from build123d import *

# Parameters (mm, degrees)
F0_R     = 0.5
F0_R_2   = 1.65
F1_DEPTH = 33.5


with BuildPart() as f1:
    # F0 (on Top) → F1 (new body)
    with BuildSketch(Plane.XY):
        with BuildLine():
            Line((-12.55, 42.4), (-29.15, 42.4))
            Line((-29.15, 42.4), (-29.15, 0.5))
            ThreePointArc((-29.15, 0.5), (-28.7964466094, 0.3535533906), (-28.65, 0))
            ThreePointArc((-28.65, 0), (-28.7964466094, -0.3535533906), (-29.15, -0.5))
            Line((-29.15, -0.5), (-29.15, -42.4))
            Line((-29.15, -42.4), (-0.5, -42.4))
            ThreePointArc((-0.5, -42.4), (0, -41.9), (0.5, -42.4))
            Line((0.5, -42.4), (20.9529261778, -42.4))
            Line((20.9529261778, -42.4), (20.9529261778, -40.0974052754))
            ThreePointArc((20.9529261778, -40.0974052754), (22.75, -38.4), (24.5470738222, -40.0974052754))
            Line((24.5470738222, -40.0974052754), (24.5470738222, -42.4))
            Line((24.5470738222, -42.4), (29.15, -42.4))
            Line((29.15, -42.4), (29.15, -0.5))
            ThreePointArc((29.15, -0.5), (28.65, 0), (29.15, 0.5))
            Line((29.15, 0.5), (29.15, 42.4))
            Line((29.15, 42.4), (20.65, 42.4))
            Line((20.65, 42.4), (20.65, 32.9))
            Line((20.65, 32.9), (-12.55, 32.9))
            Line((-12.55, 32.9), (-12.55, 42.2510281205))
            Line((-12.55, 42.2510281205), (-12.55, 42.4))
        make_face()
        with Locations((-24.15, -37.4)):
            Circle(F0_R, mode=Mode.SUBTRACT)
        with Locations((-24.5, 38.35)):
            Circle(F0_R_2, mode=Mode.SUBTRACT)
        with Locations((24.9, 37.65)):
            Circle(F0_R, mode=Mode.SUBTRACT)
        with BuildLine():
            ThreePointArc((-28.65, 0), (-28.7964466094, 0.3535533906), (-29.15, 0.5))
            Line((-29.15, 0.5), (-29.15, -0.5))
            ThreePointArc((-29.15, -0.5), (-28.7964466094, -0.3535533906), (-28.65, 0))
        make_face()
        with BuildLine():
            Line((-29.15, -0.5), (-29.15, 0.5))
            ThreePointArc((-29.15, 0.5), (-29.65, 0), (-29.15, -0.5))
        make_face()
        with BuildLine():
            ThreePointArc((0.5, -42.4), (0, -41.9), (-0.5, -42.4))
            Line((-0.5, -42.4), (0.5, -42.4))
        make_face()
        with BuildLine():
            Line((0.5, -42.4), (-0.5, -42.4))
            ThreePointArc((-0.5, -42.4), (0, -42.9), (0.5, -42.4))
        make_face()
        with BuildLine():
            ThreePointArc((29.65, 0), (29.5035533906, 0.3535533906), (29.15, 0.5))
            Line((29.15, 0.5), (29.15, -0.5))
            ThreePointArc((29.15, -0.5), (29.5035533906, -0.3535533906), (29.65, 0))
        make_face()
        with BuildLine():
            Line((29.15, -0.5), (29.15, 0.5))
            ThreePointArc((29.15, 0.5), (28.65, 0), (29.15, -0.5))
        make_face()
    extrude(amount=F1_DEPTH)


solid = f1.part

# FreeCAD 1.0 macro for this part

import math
import FreeCAD as App
import Part
import Sketcher

V = App.Vector
Q = App.Units.Quantity

doc = App.newDocument("Part")
body = doc.addObject("PartDesign::Body", "Body")

sketch1 = body.newObject("Sketcher::SketchObject", "Sketch")
sketch1.AttachmentSupport = (doc.getObject("XY_Plane"), [""])
sketch1.MapMode = "FlatFace"
sketch1.addGeometry(Part.LineSegment(V(-12.6, 42.4, 0), V(-29.1, 42.4, 0)), False)
sketch1.addGeometry(Part.LineSegment(V(-29.1, 42.4, 0), V(-29.1, 0.5, 0)), False)
sketch1.addGeometry(Part.ArcOfCircle(Part.Circle(V(-29.1, 0, 0), V(0, 0, 1), 0.5), math.radians(90), math.radians(270)), False)
sketch1.addGeometry(Part.LineSegment(V(-29.1, -0.5, 0), V(-29.1, -42.4, 0)), False)
sketch1.addGeometry(Part.LineSegment(V(-29.1, -42.4, 0), V(-0.5, -42.4, 0)), False)
sketch1.addGeometry(Part.ArcOfCircle(Part.Circle(V(0, -42.4, 0), V(0, 0, 1), 0.5), math.radians(180), math.radians(360)), False)
sketch1.addGeometry(Part.LineSegment(V(0.5, -42.4, 0), V(21, -42.4, 0)), False)
sketch1.addGeometry(Part.LineSegment(V(21, -42.4, 0), V(21, -40.1, 0)), False)
sketch1.addGeometry(Part.ArcOfCircle(Part.Circle(V(22.8, -40.2, 0), V(0, 0, 1), 1.8), math.radians(3), math.radians(177)), False)
sketch1.addGeometry(Part.LineSegment(V(24.5, -40.1, 0), V(24.5, -42.4, 0)), False)
sketch1.addGeometry(Part.LineSegment(V(24.5, -42.4, 0), V(29.1, -42.4, 0)), False)
sketch1.addGeometry(Part.LineSegment(V(29.1, -42.4, 0), V(29.1, -0.5, 0)), False)
sketch1.addGeometry(Part.ArcOfCircle(Part.Circle(V(29.1, 0, 0), V(0, 0, 1), 0.5), math.radians(-90), math.radians(0)), False)
sketch1.addGeometry(Part.ArcOfCircle(Part.Circle(V(29.1, 0, 0), V(0, 0, 1), 0.5), math.radians(0), math.radians(90)), False)
sketch1.addGeometry(Part.LineSegment(V(29.1, 0.5, 0), V(29.1, 42.4, 0)), False)
sketch1.addGeometry(Part.LineSegment(V(29.1, 42.4, 0), V(20.6, 42.4, 0)), False)
sketch1.addGeometry(Part.LineSegment(V(20.6, 42.4, 0), V(20.6, 32.9, 0)), False)
sketch1.addGeometry(Part.LineSegment(V(20.6, 32.9, 0), V(-12.6, 32.9, 0)), False)
sketch1.addGeometry(Part.LineSegment(V(-12.6, 32.9, 0), V(-12.6, 42.4, 0)), False)
sketch1.addGeometry(Part.Circle(V(-24.1, -37.4, 0), V(0, 0, 1), 0.5), False)
sketch1.addGeometry(Part.Circle(V(-24.5, 38.4, 0), V(0, 0, 1), 1.6), False)
sketch1.addGeometry(Part.Circle(V(24.9, 37.6, 0), V(0, 0, 1), 0.5), False)
sketch1.addConstraint(Sketcher.Constraint("Coincident", 0, 2, 1, 1))
sketch1.addConstraint(Sketcher.Constraint("Coincident", 1, 2, 2, 1))
sketch1.addConstraint(Sketcher.Constraint("Coincident", 2, 2, 3, 1))
sketch1.addConstraint(Sketcher.Constraint("Coincident", 3, 2, 4, 1))
sketch1.addConstraint(Sketcher.Constraint("Coincident", 4, 2, 5, 1))
sketch1.addConstraint(Sketcher.Constraint("Coincident", 5, 2, 6, 1))
sketch1.addConstraint(Sketcher.Constraint("Coincident", 6, 2, 7, 1))
sketch1.addConstraint(Sketcher.Constraint("Coincident", 7, 2, 8, 2))
sketch1.addConstraint(Sketcher.Constraint("Coincident", 8, 1, 9, 1))
sketch1.addConstraint(Sketcher.Constraint("Coincident", 9, 2, 10, 1))
sketch1.addConstraint(Sketcher.Constraint("Coincident", 10, 2, 11, 1))
sketch1.addConstraint(Sketcher.Constraint("Coincident", 11, 2, 12, 1))
sketch1.addConstraint(Sketcher.Constraint("Tangent", 12, 2, 13, 1))
sketch1.addConstraint(Sketcher.Constraint("Coincident", 13, 2, 14, 1))
sketch1.addConstraint(Sketcher.Constraint("Coincident", 14, 2, 15, 1))
sketch1.addConstraint(Sketcher.Constraint("Coincident", 15, 2, 16, 1))
sketch1.addConstraint(Sketcher.Constraint("Coincident", 16, 2, 17, 1))
sketch1.addConstraint(Sketcher.Constraint("Coincident", 17, 2, 18, 1))
sketch1.addConstraint(Sketcher.Constraint("Coincident", 18, 2, 0, 1))
sketch1.addConstraint(Sketcher.Constraint("Horizontal", 0))
sketch1.addConstraint(Sketcher.Constraint("Vertical", 1))
sketch1.addConstraint(Sketcher.Constraint("Vertical", 3))
sketch1.addConstraint(Sketcher.Constraint("Horizontal", 4))
sketch1.addConstraint(Sketcher.Constraint("Horizontal", 6))
sketch1.addConstraint(Sketcher.Constraint("Vertical", 7))
sketch1.addConstraint(Sketcher.Constraint("Vertical", 9))
sketch1.addConstraint(Sketcher.Constraint("Horizontal", 10))
sketch1.addConstraint(Sketcher.Constraint("Vertical", 11))
sketch1.addConstraint(Sketcher.Constraint("Vertical", 14))
sketch1.addConstraint(Sketcher.Constraint("Horizontal", 15))
sketch1.addConstraint(Sketcher.Constraint("Vertical", 16))
sketch1.addConstraint(Sketcher.Constraint("Horizontal", 17))
sketch1.addConstraint(Sketcher.Constraint("Vertical", 18))
sketch1.addConstraint(Sketcher.Constraint("Equal", 2, 5))
sketch1.addConstraint(Sketcher.Constraint("Equal", 5, 12))
sketch1.addConstraint(Sketcher.Constraint("Equal", 12, 13))
sketch1.addConstraint(Sketcher.Constraint("Equal", 13, 19))
sketch1.addConstraint(Sketcher.Constraint("Equal", 19, 21))
sketch1.addConstraint(Sketcher.Constraint("Symmetric", 2, 3, 12, 3, -1, 1))
sketch1.addConstraint(Sketcher.Constraint("Symmetric", 0, 2, 10, 2, -1, 1))
sketch1.addConstraint(Sketcher.Constraint("Symmetric", 3, 2, 14, 2, -1, 1))
sketch1.addConstraint(Sketcher.Constraint("Symmetric", 4, 2, 5, 2, -2))
sketch1.addConstraint(Sketcher.Constraint("Symmetric", 3, 2, 10, 2, -2))
sketch1.addConstraint(Sketcher.Constraint("PointOnObject", 2, 3, -1))
sketch1.addConstraint(Sketcher.Constraint("PointOnObject", 12, 2, -1))
sketch1.addConstraint(Sketcher.Constraint("Horizontal", 5, 3, 3, 2))
sketch1.addConstraint(Sketcher.Constraint("Horizontal", 7, 2, 8, 1))
sketch1.addConstraint(Sketcher.Constraint("Vertical", 2, 3, 0, 2))
sketch1.addConstraint(Sketcher.Constraint("Diameter", 19, Q("1 mm")))
sketch1.addConstraint(Sketcher.Constraint("Diameter", 20, Q("3.3 mm")))
sketch1.addConstraint(Sketcher.Constraint("Radius", 8, Q("1.8 mm")))
sketch1.addConstraint(Sketcher.Constraint("DistanceX", 0, 2, 0, 1, Q("16.6 mm")))
sketch1.addConstraint(Sketcher.Constraint("DistanceX", 15, 2, 15, 1, Q("8.5 mm")))
sketch1.addConstraint(Sketcher.Constraint("DistanceX", 17, 2, 17, 1, Q("33.2 mm")))
sketch1.addConstraint(Sketcher.Constraint("DistanceY", 1, 2, 1, 1, Q("41.9 mm")))
sketch1.addConstraint(Sketcher.Constraint("DistanceY", 16, 2, 16, 1, Q("9.5 mm")))
sketch1.addConstraint(Sketcher.Constraint("DistanceY", 5, 3, 19, 3, Q("5 mm")))
sketch1.addConstraint(Sketcher.Constraint("DistanceX", 2, 3, 19, 3, Q("5 mm")))
sketch1.addConstraint(Sketcher.Constraint("DistanceY", 8, 3, -1, 1, Q("40.2 mm")))
sketch1.addConstraint(Sketcher.Constraint("DistanceX", 20, 3, -1, 1, Q("24.5 mm")))
sketch1.addConstraint(Sketcher.Constraint("DistanceX", -1, 1, 21, 3, Q("24.9 mm")))
sketch1.addConstraint(Sketcher.Constraint("DistanceX", 2, 3, 8, 3, Q("51.9 mm")))
sketch1.addConstraint(Sketcher.Constraint("DistanceY", 21, 3, 20, 3, Q("0.7 mm")))
sketch1.addConstraint(Sketcher.Constraint("DistanceY", -1, 1, 20, 3, Q("38.35 mm")))
sketch1.addConstraint(Sketcher.Constraint("DistanceX", 6, 1, 6, 2, Q("20.452926 mm")))
pad1 = body.newObject("PartDesign::Pad", "Pad")
pad1.Profile = sketch1
pad1.Length = 33.5

doc.recompute()
